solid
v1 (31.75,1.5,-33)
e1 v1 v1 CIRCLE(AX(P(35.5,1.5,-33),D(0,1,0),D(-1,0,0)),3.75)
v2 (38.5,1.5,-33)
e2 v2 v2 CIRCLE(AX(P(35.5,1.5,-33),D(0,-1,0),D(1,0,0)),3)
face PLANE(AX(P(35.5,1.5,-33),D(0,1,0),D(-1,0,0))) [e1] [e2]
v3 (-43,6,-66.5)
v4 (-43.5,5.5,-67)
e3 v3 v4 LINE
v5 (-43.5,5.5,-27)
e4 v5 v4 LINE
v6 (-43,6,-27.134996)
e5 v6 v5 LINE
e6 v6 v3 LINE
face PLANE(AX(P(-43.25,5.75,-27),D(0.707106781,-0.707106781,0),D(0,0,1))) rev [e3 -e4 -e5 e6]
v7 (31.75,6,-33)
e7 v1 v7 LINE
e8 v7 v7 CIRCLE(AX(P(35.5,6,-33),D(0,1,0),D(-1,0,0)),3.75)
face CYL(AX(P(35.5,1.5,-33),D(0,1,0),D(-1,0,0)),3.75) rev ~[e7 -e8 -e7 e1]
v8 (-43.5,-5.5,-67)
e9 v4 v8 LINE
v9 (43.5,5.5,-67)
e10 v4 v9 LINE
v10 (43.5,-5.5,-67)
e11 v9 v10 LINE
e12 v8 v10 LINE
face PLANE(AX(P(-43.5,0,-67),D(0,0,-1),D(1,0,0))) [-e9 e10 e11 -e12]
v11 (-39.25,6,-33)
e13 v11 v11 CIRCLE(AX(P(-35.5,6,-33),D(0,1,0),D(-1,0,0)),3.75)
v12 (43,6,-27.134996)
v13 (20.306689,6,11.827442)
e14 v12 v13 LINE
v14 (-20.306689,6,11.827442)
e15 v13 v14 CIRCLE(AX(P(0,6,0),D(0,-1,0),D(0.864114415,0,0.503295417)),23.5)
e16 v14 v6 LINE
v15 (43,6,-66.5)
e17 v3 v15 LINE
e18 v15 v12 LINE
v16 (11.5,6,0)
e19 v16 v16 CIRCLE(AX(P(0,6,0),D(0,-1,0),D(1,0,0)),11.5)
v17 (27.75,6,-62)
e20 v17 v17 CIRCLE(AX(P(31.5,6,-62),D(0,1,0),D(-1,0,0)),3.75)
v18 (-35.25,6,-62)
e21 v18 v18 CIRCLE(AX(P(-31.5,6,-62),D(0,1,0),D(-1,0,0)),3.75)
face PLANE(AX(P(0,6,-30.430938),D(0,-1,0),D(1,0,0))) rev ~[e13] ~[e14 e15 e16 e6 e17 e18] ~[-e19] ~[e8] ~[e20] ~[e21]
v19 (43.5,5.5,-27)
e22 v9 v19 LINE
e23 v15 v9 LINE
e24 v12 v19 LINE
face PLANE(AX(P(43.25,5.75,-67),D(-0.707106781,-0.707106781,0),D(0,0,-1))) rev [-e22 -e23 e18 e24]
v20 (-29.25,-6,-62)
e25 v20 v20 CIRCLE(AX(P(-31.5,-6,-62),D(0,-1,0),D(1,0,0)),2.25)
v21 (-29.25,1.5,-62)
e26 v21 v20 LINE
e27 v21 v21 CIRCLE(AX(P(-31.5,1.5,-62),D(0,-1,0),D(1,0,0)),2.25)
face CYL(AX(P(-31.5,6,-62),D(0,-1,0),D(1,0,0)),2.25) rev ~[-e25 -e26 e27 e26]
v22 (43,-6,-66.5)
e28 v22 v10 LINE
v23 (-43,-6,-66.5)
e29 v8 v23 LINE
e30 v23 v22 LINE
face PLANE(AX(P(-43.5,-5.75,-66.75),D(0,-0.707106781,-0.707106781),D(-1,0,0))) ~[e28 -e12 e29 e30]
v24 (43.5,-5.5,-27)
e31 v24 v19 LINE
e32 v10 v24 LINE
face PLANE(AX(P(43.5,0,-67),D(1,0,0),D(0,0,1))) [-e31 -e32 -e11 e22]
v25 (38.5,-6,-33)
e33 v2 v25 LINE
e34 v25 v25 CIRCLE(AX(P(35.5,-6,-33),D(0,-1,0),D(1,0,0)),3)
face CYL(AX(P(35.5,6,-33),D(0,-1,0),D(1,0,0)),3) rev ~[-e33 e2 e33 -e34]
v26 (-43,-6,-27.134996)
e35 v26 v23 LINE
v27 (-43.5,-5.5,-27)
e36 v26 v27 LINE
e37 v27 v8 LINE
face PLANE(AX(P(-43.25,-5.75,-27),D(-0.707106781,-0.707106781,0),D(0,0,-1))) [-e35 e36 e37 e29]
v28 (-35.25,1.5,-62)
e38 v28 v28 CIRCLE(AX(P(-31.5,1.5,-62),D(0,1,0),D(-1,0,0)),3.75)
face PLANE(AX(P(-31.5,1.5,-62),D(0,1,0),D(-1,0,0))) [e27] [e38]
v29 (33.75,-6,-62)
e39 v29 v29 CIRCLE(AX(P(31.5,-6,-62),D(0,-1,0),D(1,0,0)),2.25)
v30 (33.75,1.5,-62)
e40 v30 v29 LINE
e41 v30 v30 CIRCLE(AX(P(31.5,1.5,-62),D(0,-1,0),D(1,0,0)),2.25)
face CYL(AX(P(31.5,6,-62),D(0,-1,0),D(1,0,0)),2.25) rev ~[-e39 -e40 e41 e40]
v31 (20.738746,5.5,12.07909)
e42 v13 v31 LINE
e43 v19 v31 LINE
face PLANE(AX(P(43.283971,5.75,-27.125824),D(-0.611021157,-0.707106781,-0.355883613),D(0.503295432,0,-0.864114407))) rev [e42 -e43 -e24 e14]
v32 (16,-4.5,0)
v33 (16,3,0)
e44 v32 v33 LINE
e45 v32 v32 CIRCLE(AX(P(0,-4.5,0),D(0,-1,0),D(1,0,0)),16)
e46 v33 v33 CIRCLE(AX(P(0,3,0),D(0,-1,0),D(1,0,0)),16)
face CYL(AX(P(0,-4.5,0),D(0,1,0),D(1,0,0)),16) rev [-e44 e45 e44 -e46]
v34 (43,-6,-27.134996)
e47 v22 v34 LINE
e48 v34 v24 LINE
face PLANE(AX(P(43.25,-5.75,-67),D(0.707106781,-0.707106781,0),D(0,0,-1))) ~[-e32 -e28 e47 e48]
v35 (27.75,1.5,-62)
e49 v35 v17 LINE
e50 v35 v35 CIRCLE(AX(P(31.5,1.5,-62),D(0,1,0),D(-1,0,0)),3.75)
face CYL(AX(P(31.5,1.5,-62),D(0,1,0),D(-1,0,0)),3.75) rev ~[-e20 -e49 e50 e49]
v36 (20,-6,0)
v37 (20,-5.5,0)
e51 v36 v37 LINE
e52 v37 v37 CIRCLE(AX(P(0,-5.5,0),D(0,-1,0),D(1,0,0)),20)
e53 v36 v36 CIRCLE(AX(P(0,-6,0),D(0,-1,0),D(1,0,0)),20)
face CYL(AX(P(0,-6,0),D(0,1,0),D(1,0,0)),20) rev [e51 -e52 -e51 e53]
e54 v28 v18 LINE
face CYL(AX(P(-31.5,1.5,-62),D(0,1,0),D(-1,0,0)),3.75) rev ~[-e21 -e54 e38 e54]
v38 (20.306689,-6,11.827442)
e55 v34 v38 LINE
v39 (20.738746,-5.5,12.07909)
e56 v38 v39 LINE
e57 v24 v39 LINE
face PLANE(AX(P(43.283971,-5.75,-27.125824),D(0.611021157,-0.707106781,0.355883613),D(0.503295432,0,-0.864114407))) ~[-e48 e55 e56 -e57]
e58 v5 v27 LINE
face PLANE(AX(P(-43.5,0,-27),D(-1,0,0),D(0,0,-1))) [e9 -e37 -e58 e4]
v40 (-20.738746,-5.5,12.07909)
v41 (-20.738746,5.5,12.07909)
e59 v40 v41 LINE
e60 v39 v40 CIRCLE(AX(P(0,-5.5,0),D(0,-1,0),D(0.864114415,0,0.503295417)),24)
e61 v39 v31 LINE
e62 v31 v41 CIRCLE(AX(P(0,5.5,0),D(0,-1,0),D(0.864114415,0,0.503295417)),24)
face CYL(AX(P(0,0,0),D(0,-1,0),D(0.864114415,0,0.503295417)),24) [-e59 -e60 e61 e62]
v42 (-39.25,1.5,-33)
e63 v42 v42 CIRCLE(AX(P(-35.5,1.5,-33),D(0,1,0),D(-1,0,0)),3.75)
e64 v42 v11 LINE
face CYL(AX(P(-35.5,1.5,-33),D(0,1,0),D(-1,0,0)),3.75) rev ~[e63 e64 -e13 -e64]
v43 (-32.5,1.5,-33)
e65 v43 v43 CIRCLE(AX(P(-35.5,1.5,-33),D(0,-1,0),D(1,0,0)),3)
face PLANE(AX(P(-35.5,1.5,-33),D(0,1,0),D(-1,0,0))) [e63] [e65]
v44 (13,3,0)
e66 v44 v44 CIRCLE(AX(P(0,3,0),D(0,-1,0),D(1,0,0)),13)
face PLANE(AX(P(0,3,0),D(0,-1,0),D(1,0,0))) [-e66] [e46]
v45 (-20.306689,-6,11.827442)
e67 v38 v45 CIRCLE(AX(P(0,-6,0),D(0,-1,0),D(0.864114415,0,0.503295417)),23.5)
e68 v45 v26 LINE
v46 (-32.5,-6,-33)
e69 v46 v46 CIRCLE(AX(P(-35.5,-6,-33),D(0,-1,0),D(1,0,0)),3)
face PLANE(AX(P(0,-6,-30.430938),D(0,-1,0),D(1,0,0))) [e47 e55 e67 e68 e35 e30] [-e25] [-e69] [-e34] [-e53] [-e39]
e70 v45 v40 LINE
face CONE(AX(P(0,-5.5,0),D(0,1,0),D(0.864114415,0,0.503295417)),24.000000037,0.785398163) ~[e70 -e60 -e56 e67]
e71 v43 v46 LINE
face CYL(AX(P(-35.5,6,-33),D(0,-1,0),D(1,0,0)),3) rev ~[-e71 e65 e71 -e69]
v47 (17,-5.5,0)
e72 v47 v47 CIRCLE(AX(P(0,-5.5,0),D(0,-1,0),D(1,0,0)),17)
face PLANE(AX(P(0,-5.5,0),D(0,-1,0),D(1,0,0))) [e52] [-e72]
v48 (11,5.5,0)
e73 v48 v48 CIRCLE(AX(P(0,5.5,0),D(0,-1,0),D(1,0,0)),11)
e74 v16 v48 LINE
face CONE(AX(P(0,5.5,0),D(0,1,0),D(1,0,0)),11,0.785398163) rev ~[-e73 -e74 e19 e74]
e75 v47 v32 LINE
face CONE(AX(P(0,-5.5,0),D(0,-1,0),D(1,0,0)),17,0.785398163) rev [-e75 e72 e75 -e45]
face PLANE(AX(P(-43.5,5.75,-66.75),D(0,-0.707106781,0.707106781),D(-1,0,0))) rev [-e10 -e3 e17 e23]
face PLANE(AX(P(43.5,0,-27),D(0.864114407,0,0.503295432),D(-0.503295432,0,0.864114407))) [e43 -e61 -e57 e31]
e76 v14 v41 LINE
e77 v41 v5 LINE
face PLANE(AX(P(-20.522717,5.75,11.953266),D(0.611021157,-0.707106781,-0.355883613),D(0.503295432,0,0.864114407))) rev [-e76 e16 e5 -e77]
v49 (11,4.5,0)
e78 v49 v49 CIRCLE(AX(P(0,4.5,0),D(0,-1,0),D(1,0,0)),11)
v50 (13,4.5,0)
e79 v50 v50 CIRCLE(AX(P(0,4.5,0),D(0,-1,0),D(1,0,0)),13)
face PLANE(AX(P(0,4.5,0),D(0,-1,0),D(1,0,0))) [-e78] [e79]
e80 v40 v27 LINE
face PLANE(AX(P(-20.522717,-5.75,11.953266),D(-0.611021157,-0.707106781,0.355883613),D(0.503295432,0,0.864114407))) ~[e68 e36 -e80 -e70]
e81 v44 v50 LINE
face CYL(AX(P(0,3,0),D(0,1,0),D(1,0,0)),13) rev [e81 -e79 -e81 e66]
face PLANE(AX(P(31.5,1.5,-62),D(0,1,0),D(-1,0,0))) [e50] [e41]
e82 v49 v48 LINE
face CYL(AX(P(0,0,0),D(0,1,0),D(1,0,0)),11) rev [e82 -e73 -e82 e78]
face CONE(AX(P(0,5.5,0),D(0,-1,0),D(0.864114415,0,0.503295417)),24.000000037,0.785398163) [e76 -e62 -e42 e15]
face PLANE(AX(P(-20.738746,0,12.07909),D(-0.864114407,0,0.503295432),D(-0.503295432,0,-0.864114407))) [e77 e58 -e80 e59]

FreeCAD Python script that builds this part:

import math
import FreeCAD as App
import Part
import Sketcher
from FreeCAD import Vector
Q = App.Units.Quantity


def edges_at(feature, points):
    """Names of the edges that pass closest to the given points."""
    edges = feature.Shape.Edges
    near = lambda p: min(range(len(edges)), key=lambda i: edges[i].distToShape(Part.Vertex(*p))[0])
    return sorted({f"Edge{near(p) + 1}" for p in points})


def add_polygon(sketch, points):
    """Adds a closed chain of lines whose ends are joined by coincident constraints."""
    first, n = sketch.GeometryCount, len(points)
    for a, b in zip(points, points[1:] + points[:1]):
        sketch.addGeometry(Part.LineSegment(App.Vector(*a, 0), App.Vector(*b, 0)), False)
    for i in range(n):
        sketch.addConstraint(Sketcher.Constraint("Coincident", first + i, 2, first + (i + 1) % n, 1))

doc = App.newDocument("Part")
params = doc.addObject("Spreadsheet::Sheet", "Params")
for row, (alias, value) in enumerate([
    ("sketch1_diameter", "22 mm"),
    ("sketch1_radius", "24 mm"),
    ("sketch1_width", "87 mm"),
    ("sketch1_height", "40 mm"),
    ("pad1_length", "12 mm"),
    ("sketch2_diameter", "6 mm"),
    ("hole_diameter", "6 mm"),
    ("hole_depth", "18 mm"),
    ("hole_cbore_diameter", "7.5 mm"),
    ("hole_cbore_depth", "4.5 mm"),
    ("sketch3_diameter", "4.5 mm"),
    ("hole2_diameter", "4.5 mm"),
    ("hole2_depth", "18 mm"),
    ("hole2_cbore_diameter", "7.5 mm"),
    ("hole2_cbore_depth", "4.5 mm"),
    ("sketch4_width", "20 mm"),
    ("sketch4_width2", "3 mm"),
    ("sketch4_width3", "2 mm"),
    ("sketch4_width4", "11 mm"),
    ("sketch4_height", "12 mm"),
    ("groove_angle", "360 deg"),
    ("chamfer_size", "0.5 mm"),
], start=1):
    params.set(f"A{row}", alias)
    params.set(f"B{row}", "=" + value)
    params.setAlias(f"B{row}", alias)

body = doc.addObject("PartDesign::Body", "Body")

# Sketch on XZ plane
sketch1 = body.newObject("Sketcher::SketchObject", "Sketch")
sketch1.AttachmentSupport = (doc.getObject("XZ_Plane"), [""])
sketch1.MapMode = "FlatFace"
sketch1.addGeometry([
    Part.LineSegment(Vector(-21, 12, 0), Vector(-44, -27, 0)),  # 0
    Part.LineSegment(Vector(-44, -27, 0), Vector(-44, -67, 0)),  # 1
    Part.LineSegment(Vector(-44, -67, 0), Vector(44, -67, 0)),  # 2
    Part.LineSegment(Vector(44, -67, 0), Vector(44, -27, 0)),  # 3
    Part.LineSegment(Vector(44, -27, 0), Vector(21, 12, 0)),  # 4
    Part.ArcOfCircle(Part.Circle(Vector(0, 0, 0), Vector(0, 0, 1), 24), math.radians(30), math.radians(150)),  # 5
    Part.Circle(Vector(0, 0, 0), Vector(0, 0, 1), 11),  # 6
], False)
sketch1.addConstraint([
    Sketcher.Constraint("Coincident", 0, 2, 1, 1),
    Sketcher.Constraint("Coincident", 1, 2, 2, 1),
    Sketcher.Constraint("Coincident", 2, 2, 3, 1),
    Sketcher.Constraint("Coincident", 3, 2, 4, 1),
    Sketcher.Constraint("Tangent", 4, 2, 5, 1),
    Sketcher.Constraint("Tangent", 5, 2, 0, 1),
    Sketcher.Constraint("Vertical", 1),
    Sketcher.Constraint("Horizontal", 2),
    Sketcher.Constraint("Vertical", 3),
    Sketcher.Constraint("Coincident", 5, 3, -1, 1),
    Sketcher.Constraint("Coincident", 6, 3, -1, 1),
    Sketcher.Constraint("Symmetric", 0, 2, 3, 2, -2),
    Sketcher.Constraint("Diameter", 6, 22.0),
    Sketcher.Constraint("Radius", 5, 24.0),
    Sketcher.Constraint("DistanceX", 2, 1, 2, 2, 87.0),
    Sketcher.Constraint("DistanceY", 1, 2, 1, 1, 40.0),
    Sketcher.Constraint("DistanceY", 0, 2, -1, 1, 27.0),
])
sketch1.setExpression("Constraints[12]", "Params.sketch1_diameter")
sketch1.setExpression("Constraints[13]", "Params.sketch1_radius")
sketch1.setExpression("Constraints[14]", "Params.sketch1_width")
sketch1.setExpression("Constraints[15]", "Params.sketch1_height")
pad1 = body.newObject("PartDesign::Pad", "Pad")
pad1.Profile = sketch1
pad1.setExpression("Length", "Params.pad1_length")
pad1.Midplane = True

# Sketch on XZ plane
sketch2 = body.newObject("Sketcher::SketchObject", "Sketch001")
sketch2.AttachmentSupport = (doc.getObject("XZ_Plane"), [""])
sketch2.MapMode = "FlatFace"
sketch2.AttachmentOffset = App.Placement(Vector(0, 0, -6), App.Rotation())
sketch2.addGeometry([
    Part.Circle(Vector(35.5, -33, 0), Vector(0, 0, 1), 3),
    Part.Circle(Vector(-35.5, -33, 0), Vector(0, 0, 1), 3),
], False)
sketch2.addConstraint([
    Sketcher.Constraint("Equal", 0, 1),
    Sketcher.Constraint("Symmetric", 0, 3, 1, 3, -2),
    Sketcher.Constraint("Diameter", 0, 6.0),
    Sketcher.Constraint("DistanceY", 0, 3, -1, 1, 33.0),
    Sketcher.Constraint("DistanceX", 1, 3, 0, 3, 71.0),
])
sketch2.setExpression("Constraints[2]", "Params.sketch2_diameter")
doc.recompute()
hole = body.newObject("PartDesign::Hole", "Hole")
hole.Profile = sketch2
hole.ThreadType = "None"
hole.setExpression("Diameter", "Params.hole_diameter")
hole.DepthType = "Dimension"
hole.setExpression("Depth", "Params.hole_depth")
hole.DrillPoint = "Flat"
hole.HoleCutType = "Counterbore"
hole.setExpression("HoleCutDiameter", "Params.hole_cbore_diameter")
hole.setExpression("HoleCutDepth", "Params.hole_cbore_depth")
hole.Reversed = True

# Sketch on XZ plane
sketch3 = body.newObject("Sketcher::SketchObject", "Sketch002")
sketch3.AttachmentSupport = (doc.getObject("XZ_Plane"), [""])
sketch3.MapMode = "FlatFace"
sketch3.AttachmentOffset = App.Placement(Vector(0, 0, -6), App.Rotation())
sketch3.addGeometry([
    Part.Circle(Vector(31.5, -62, 0), Vector(0, 0, 1), 2.2),
    Part.Circle(Vector(-31.5, -62, 0), Vector(0, 0, 1), 2.2),
], False)
sketch3.addConstraint([
    Sketcher.Constraint("Equal", 0, 1),
    Sketcher.Constraint("Symmetric", 0, 3, 1, 3, -2),
    Sketcher.Constraint("Diameter", 0, 4.5),
    Sketcher.Constraint("DistanceY", 0, 3, -1, 1, 62.0),
    Sketcher.Constraint("DistanceX", 1, 3, 0, 3, 63.0),
])
sketch3.setExpression("Constraints[2]", "Params.sketch3_diameter")
doc.recompute()
hole2 = body.newObject("PartDesign::Hole", "Hole001")
hole2.Profile = sketch3
hole2.ThreadType = "None"
hole2.setExpression("Diameter", "Params.hole2_diameter")
hole2.DepthType = "Dimension"
hole2.setExpression("Depth", "Params.hole2_depth")
hole2.DrillPoint = "Flat"
hole2.HoleCutType = "Counterbore"
hole2.setExpression("HoleCutDiameter", "Params.hole2_cbore_diameter")
hole2.setExpression("HoleCutDepth", "Params.hole2_cbore_depth")
hole2.Reversed = True

# Sketch on XY plane
sketch4 = body.newObject("Sketcher::SketchObject", "Sketch003")
sketch4.AttachmentSupport = (doc.getObject("XY_Plane"), [""])
sketch4.MapMode = "FlatFace"
add_polygon(sketch4, [(0, 6), (0, -6), (20, -6), (20, -5.5), (17, -5.5), (16, -4.5), (16, 3), (13, 3), (13, 4.5), (11, 4.5), (11, 6)])  # lines 0-10
sketch4.addConstraint([
    Sketcher.Constraint("Vertical", 0),
    Sketcher.Constraint("Horizontal", 1),
    Sketcher.Constraint("Vertical", 2),
    Sketcher.Constraint("Horizontal", 3),
    Sketcher.Constraint("Vertical", 5),
    Sketcher.Constraint("Horizontal", 6),
    Sketcher.Constraint("Vertical", 7),
    Sketcher.Constraint("Horizontal", 8),
    Sketcher.Constraint("Vertical", 9),
    Sketcher.Constraint("Horizontal", 10),
    Sketcher.Constraint("Symmetric", 0, 2, 10, 2, -1, 1),
    Sketcher.Constraint("Equal", 3, 6),
    Sketcher.Constraint("Equal", 7, 9),
    Sketcher.Constraint("DistanceX", 1, 1, 1, 2, 20.0),
    Sketcher.Constraint("DistanceX", 3, 2, 3, 1, 3.0),
    Sketcher.Constraint("DistanceX", 8, 2, 8, 1, 2.0),
    Sketcher.Constraint("DistanceX", 10, 2, 10, 1, 11.0),
    Sketcher.Constraint("DistanceY", 0, 2, 0, 1, 12.0),
    Sketcher.Constraint("Angle", 4, Q("135 deg")),
    Sketcher.Constraint("DistanceY", 2, 1, 2, 2, 0.5),
    Sketcher.Constraint("DistanceY", 5, 1, 5, 2, 7.5),
])
sketch4.setExpression("Constraints[24]", "Params.sketch4_width")
sketch4.setExpression("Constraints[25]", "Params.sketch4_width2")
sketch4.setExpression("Constraints[26]", "Params.sketch4_width3")
sketch4.setExpression("Constraints[27]", "Params.sketch4_width4")
sketch4.setExpression("Constraints[28]", "Params.sketch4_height")
groove = body.newObject("PartDesign::Groove", "Groove")
groove.Profile = sketch4
groove.ReferenceAxis = (sketch4, ["V_Axis"])
groove.setExpression("Angle", "Params.groove_angle")
doc.recompute()

chamfer = body.newObject("PartDesign::Chamfer", "Chamfer")
chamfer.Base = (groove, edges_at(groove, [
    (-11, 6, 0),
    (32.119, 6, -7.46),
    (0, 6, 24),
    (43.5, 6, -47),
    (0, 6, -67),
    (-43.5, 6, -47),
    (-32.119, 6, -7.46),
    (0, -6, 24),
    (32.119, -6, -7.46),
    (-32.119, -6, -7.46),
    (-43.5, -6, -47),
    (43.5, -6, -47),
    (0, -6, -67),
]))
chamfer.setExpression("Size", "Params.chamfer_size")

doc.recompute()
